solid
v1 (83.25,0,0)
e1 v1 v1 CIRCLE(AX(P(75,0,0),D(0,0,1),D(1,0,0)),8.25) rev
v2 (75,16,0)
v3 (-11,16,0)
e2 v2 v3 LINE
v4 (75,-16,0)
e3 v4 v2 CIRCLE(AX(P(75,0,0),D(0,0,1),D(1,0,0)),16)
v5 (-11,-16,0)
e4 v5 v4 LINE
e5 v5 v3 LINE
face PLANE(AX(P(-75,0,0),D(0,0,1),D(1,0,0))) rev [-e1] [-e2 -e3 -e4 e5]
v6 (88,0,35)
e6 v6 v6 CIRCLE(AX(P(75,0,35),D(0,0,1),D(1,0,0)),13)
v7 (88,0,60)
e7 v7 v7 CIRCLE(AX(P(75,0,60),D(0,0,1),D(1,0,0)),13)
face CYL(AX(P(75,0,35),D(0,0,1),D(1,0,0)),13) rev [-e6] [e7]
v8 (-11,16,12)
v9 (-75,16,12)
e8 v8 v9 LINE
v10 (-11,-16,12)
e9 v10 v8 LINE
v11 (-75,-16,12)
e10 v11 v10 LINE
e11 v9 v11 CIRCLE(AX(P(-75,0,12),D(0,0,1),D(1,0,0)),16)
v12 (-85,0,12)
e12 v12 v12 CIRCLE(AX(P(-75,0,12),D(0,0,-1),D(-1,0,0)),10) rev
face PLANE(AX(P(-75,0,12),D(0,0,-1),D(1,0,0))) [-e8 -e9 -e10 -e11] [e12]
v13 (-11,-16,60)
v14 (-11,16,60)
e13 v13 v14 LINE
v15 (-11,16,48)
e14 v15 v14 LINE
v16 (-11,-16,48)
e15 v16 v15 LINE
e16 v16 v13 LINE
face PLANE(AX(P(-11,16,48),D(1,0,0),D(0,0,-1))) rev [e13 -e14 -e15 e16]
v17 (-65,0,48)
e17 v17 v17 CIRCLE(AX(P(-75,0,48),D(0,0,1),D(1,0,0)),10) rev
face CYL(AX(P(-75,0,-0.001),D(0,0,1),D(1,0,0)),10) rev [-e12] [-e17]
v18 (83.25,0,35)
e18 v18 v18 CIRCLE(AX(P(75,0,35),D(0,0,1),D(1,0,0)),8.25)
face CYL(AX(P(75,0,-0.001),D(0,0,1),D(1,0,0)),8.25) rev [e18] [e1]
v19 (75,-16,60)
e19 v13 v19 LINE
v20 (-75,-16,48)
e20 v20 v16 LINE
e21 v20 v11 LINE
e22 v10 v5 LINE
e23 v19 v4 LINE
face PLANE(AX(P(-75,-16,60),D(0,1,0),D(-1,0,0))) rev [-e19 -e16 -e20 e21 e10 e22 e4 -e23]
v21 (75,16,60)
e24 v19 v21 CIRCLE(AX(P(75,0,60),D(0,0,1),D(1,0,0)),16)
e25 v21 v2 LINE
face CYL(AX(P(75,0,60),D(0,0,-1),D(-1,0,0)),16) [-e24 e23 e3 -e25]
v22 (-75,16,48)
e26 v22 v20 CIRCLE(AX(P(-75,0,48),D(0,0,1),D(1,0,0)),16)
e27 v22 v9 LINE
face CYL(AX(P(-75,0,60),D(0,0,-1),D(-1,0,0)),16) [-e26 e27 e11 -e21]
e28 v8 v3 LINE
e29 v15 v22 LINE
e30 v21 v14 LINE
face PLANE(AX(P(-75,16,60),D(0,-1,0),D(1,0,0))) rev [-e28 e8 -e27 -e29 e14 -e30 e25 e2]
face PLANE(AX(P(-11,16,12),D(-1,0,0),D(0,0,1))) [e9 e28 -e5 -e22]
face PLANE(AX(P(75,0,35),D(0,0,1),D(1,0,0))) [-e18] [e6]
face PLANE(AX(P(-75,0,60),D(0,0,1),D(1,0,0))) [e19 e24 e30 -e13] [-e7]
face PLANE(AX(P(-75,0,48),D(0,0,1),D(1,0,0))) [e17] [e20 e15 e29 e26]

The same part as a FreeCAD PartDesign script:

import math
import FreeCAD as App
import Part
import Sketcher
from FreeCAD import Vector

doc = App.newDocument("Part")
params = doc.addObject("Spreadsheet::Sheet", "Params")
for row, (alias, value) in enumerate([
    ("sketch1_radius", "16 mm"),
    ("sketch1_width", "150 mm"),
    ("pad1_length", "60 mm"),
    ("sketch2_diameter", "26 mm"),
    ("pocket1_length", "25 mm"),
    ("sketch3_diameter", "16.5 mm"),
    ("sketch4_diameter", "20 mm"),
    ("sketch5_radius", "16 mm"),
    ("sketch5_width", "64 mm"),
    ("pocket4_length", "12 mm"),
], start=1):
    params.set(f"A{row}", alias)
    params.set(f"B{row}", "=" + value)
    params.setAlias(f"B{row}", alias)

body = doc.addObject("PartDesign::Body", "Body")

sketch1 = body.newObject("Sketcher::SketchObject", "Sketch")
sketch1.AttachmentSupport = (doc.getObject("XY_Plane"), [""])
sketch1.MapMode = "FlatFace"
sketch1.addGeometry(Part.LineSegment(Vector(75, 16, 0), Vector(-75, 16, 0)), False)
sketch1.addGeometry(Part.ArcOfCircle(Part.Circle(Vector(-75, 0, 0), Vector(0, 0, 1), 16), math.radians(90), math.radians(270)), False)
sketch1.addGeometry(Part.LineSegment(Vector(-75, -16, 0), Vector(75, -16, 0)), False)
sketch1.addGeometry(Part.ArcOfCircle(Part.Circle(Vector(75, 0, 0), Vector(0, 0, 1), 16), math.radians(-90), math.radians(90)), False)
sketch1.addConstraint(Sketcher.Constraint("Tangent", 0, 2, 1, 1))
sketch1.addConstraint(Sketcher.Constraint("Tangent", 1, 2, 2, 1))
sketch1.addConstraint(Sketcher.Constraint("Tangent", 2, 2, 3, 1))
sketch1.addConstraint(Sketcher.Constraint("Tangent", 3, 2, 0, 1))
sketch1.addConstraint(Sketcher.Constraint("Horizontal", 0))
sketch1.addConstraint(Sketcher.Constraint("Horizontal", 2))
sketch1.addConstraint(Sketcher.Constraint("Symmetric", 1, 3, 3, 3, -1, 1))
sketch1.addConstraint(Sketcher.Constraint("Radius", 1, 16.0))
sketch1.addConstraint(Sketcher.Constraint("DistanceX", 0, 2, 0, 1, 150.0))
sketch1.setExpression("Constraints[7]", "Params.sketch1_radius")
sketch1.setExpression("Constraints[8]", "Params.sketch1_width")
pad1 = body.newObject("PartDesign::Pad", "Pad")
pad1.Profile = sketch1
pad1.setExpression("Length", "Params.pad1_length")

sketch2 = body.newObject("Sketcher::SketchObject", "Sketch001")
sketch2.AttachmentSupport = (doc.getObject("XY_Plane"), [""])
sketch2.MapMode = "FlatFace"
sketch2.AttachmentOffset = App.Placement(Vector(0, 0, 60), App.Rotation())
sketch2.addGeometry(Part.Circle(Vector(75, 0, 0), Vector(0, 0, 1), 13), False)
sketch2.addConstraint(Sketcher.Constraint("PointOnObject", 0, 3, -1))
sketch2.addConstraint(Sketcher.Constraint("Diameter", 0, 26.0))
sketch2.addConstraint(Sketcher.Constraint("DistanceX", -1, 1, 0, 3, 75.0))
sketch2.setExpression("Constraints[1]", "Params.sketch2_diameter")
pocket1 = body.newObject("PartDesign::Pocket", "Pocket")
pocket1.Profile = sketch2
pocket1.setExpression("Length", "Params.pocket1_length")

sketch3 = body.newObject("Sketcher::SketchObject", "Sketch002")
sketch3.AttachmentSupport = (doc.getObject("XY_Plane"), [""])
sketch3.MapMode = "FlatFace"
sketch3.AttachmentOffset = App.Placement(Vector(0, 0, 35), App.Rotation())
sketch3.addGeometry(Part.Circle(Vector(75, 0, 0), Vector(0, 0, 1), 8), False)
sketch3.addConstraint(Sketcher.Constraint("PointOnObject", 0, 3, -1))
sketch3.addConstraint(Sketcher.Constraint("Diameter", 0, 16.5))
sketch3.addConstraint(Sketcher.Constraint("DistanceX", -1, 1, 0, 3, 75.0))
sketch3.setExpression("Constraints[1]", "Params.sketch3_diameter")
pocket2 = body.newObject("PartDesign::Pocket", "Pocket001")
pocket2.Profile = sketch3
pocket2.Type = "UpToFirst"

sketch4 = body.newObject("Sketcher::SketchObject", "Sketch003")
sketch4.AttachmentSupport = (doc.getObject("XY_Plane"), [""])
sketch4.MapMode = "FlatFace"
sketch4.AttachmentOffset = App.Placement(Vector(0, 0, 60), App.Rotation())
sketch4.addGeometry(Part.Circle(Vector(-75, 0, 0), Vector(0, 0, 1), 10), False)
sketch4.addConstraint(Sketcher.Constraint("PointOnObject", 0, 3, -1))
sketch4.addConstraint(Sketcher.Constraint("Diameter", 0, 20.0))
sketch4.addConstraint(Sketcher.Constraint("DistanceX", 0, 3, -1, 1, 75.0))
sketch4.setExpression("Constraints[1]", "Params.sketch4_diameter")
pocket3 = body.newObject("PartDesign::Pocket", "Pocket002")
pocket3.Profile = sketch4
pocket3.Type = "UpToFirst"

sketch5 = body.newObject("Sketcher::SketchObject", "Sketch004")
sketch5.AttachmentSupport = (doc.getObject("XY_Plane"), [""])
sketch5.MapMode = "FlatFace"
sketch5.AttachmentOffset = App.Placement(Vector(0, 0, 48), App.Rotation())
sketch5.addGeometry(Part.LineSegment(Vector(-11, -16, 0), Vector(-11, 16, 0)), False)
sketch5.addGeometry(Part.LineSegment(Vector(-11, 16, 0), Vector(-75, 16, 0)), False)
sketch5.addGeometry(Part.ArcOfCircle(Part.Circle(Vector(-75, 0, 0), Vector(0, 0, 1), 16), math.radians(90), math.radians(270)), False)
sketch5.addGeometry(Part.LineSegment(Vector(-75, -16, 0), Vector(-11, -16, 0)), False)
sketch5.addConstraint(Sketcher.Constraint("Coincident", 0, 2, 1, 1))
sketch5.addConstraint(Sketcher.Constraint("Tangent", 1, 2, 2, 1))
sketch5.addConstraint(Sketcher.Constraint("Tangent", 2, 2, 3, 1))
sketch5.addConstraint(Sketcher.Constraint("Coincident", 3, 2, 0, 1))
sketch5.addConstraint(Sketcher.Constraint("Vertical", 0))
sketch5.addConstraint(Sketcher.Constraint("Horizontal", 1))
sketch5.addConstraint(Sketcher.Constraint("Horizontal", 3))
sketch5.addConstraint(Sketcher.Constraint("PointOnObject", 2, 3, -1))
sketch5.addConstraint(Sketcher.Constraint("Radius", 2, 16.0))
sketch5.addConstraint(Sketcher.Constraint("DistanceX", 1, 2, 1, 1, 64.0))
sketch5.addConstraint(Sketcher.Constraint("DistanceX", 2, 3, -1, 1, 75.0))
sketch5.setExpression("Constraints[8]", "Params.sketch5_radius")
sketch5.setExpression("Constraints[9]", "Params.sketch5_width")
pocket4 = body.newObject("PartDesign::Pocket", "Pocket003")
pocket4.Profile = sketch5
pocket4.setExpression("Length", "Params.pocket4_length")
pocket4.Reversed = True
doc.recompute()

datumplane = body.newObject("PartDesign::Plane", "DatumPlane")
datumplane.AttachmentSupport = (doc.getObject("XY_Plane"), [""])
datumplane.MapMode = "FlatFace"
datumplane.AttachmentOffset = App.Placement(Vector(0, 0, 30), App.Rotation())
mirrored = body.newObject("PartDesign::Mirrored", "Mirrored")
mirrored.Originals = [pocket4]
mirrored.MirrorPlane = (datumplane, [""])
body.Tip = mirrored

doc.recompute()
